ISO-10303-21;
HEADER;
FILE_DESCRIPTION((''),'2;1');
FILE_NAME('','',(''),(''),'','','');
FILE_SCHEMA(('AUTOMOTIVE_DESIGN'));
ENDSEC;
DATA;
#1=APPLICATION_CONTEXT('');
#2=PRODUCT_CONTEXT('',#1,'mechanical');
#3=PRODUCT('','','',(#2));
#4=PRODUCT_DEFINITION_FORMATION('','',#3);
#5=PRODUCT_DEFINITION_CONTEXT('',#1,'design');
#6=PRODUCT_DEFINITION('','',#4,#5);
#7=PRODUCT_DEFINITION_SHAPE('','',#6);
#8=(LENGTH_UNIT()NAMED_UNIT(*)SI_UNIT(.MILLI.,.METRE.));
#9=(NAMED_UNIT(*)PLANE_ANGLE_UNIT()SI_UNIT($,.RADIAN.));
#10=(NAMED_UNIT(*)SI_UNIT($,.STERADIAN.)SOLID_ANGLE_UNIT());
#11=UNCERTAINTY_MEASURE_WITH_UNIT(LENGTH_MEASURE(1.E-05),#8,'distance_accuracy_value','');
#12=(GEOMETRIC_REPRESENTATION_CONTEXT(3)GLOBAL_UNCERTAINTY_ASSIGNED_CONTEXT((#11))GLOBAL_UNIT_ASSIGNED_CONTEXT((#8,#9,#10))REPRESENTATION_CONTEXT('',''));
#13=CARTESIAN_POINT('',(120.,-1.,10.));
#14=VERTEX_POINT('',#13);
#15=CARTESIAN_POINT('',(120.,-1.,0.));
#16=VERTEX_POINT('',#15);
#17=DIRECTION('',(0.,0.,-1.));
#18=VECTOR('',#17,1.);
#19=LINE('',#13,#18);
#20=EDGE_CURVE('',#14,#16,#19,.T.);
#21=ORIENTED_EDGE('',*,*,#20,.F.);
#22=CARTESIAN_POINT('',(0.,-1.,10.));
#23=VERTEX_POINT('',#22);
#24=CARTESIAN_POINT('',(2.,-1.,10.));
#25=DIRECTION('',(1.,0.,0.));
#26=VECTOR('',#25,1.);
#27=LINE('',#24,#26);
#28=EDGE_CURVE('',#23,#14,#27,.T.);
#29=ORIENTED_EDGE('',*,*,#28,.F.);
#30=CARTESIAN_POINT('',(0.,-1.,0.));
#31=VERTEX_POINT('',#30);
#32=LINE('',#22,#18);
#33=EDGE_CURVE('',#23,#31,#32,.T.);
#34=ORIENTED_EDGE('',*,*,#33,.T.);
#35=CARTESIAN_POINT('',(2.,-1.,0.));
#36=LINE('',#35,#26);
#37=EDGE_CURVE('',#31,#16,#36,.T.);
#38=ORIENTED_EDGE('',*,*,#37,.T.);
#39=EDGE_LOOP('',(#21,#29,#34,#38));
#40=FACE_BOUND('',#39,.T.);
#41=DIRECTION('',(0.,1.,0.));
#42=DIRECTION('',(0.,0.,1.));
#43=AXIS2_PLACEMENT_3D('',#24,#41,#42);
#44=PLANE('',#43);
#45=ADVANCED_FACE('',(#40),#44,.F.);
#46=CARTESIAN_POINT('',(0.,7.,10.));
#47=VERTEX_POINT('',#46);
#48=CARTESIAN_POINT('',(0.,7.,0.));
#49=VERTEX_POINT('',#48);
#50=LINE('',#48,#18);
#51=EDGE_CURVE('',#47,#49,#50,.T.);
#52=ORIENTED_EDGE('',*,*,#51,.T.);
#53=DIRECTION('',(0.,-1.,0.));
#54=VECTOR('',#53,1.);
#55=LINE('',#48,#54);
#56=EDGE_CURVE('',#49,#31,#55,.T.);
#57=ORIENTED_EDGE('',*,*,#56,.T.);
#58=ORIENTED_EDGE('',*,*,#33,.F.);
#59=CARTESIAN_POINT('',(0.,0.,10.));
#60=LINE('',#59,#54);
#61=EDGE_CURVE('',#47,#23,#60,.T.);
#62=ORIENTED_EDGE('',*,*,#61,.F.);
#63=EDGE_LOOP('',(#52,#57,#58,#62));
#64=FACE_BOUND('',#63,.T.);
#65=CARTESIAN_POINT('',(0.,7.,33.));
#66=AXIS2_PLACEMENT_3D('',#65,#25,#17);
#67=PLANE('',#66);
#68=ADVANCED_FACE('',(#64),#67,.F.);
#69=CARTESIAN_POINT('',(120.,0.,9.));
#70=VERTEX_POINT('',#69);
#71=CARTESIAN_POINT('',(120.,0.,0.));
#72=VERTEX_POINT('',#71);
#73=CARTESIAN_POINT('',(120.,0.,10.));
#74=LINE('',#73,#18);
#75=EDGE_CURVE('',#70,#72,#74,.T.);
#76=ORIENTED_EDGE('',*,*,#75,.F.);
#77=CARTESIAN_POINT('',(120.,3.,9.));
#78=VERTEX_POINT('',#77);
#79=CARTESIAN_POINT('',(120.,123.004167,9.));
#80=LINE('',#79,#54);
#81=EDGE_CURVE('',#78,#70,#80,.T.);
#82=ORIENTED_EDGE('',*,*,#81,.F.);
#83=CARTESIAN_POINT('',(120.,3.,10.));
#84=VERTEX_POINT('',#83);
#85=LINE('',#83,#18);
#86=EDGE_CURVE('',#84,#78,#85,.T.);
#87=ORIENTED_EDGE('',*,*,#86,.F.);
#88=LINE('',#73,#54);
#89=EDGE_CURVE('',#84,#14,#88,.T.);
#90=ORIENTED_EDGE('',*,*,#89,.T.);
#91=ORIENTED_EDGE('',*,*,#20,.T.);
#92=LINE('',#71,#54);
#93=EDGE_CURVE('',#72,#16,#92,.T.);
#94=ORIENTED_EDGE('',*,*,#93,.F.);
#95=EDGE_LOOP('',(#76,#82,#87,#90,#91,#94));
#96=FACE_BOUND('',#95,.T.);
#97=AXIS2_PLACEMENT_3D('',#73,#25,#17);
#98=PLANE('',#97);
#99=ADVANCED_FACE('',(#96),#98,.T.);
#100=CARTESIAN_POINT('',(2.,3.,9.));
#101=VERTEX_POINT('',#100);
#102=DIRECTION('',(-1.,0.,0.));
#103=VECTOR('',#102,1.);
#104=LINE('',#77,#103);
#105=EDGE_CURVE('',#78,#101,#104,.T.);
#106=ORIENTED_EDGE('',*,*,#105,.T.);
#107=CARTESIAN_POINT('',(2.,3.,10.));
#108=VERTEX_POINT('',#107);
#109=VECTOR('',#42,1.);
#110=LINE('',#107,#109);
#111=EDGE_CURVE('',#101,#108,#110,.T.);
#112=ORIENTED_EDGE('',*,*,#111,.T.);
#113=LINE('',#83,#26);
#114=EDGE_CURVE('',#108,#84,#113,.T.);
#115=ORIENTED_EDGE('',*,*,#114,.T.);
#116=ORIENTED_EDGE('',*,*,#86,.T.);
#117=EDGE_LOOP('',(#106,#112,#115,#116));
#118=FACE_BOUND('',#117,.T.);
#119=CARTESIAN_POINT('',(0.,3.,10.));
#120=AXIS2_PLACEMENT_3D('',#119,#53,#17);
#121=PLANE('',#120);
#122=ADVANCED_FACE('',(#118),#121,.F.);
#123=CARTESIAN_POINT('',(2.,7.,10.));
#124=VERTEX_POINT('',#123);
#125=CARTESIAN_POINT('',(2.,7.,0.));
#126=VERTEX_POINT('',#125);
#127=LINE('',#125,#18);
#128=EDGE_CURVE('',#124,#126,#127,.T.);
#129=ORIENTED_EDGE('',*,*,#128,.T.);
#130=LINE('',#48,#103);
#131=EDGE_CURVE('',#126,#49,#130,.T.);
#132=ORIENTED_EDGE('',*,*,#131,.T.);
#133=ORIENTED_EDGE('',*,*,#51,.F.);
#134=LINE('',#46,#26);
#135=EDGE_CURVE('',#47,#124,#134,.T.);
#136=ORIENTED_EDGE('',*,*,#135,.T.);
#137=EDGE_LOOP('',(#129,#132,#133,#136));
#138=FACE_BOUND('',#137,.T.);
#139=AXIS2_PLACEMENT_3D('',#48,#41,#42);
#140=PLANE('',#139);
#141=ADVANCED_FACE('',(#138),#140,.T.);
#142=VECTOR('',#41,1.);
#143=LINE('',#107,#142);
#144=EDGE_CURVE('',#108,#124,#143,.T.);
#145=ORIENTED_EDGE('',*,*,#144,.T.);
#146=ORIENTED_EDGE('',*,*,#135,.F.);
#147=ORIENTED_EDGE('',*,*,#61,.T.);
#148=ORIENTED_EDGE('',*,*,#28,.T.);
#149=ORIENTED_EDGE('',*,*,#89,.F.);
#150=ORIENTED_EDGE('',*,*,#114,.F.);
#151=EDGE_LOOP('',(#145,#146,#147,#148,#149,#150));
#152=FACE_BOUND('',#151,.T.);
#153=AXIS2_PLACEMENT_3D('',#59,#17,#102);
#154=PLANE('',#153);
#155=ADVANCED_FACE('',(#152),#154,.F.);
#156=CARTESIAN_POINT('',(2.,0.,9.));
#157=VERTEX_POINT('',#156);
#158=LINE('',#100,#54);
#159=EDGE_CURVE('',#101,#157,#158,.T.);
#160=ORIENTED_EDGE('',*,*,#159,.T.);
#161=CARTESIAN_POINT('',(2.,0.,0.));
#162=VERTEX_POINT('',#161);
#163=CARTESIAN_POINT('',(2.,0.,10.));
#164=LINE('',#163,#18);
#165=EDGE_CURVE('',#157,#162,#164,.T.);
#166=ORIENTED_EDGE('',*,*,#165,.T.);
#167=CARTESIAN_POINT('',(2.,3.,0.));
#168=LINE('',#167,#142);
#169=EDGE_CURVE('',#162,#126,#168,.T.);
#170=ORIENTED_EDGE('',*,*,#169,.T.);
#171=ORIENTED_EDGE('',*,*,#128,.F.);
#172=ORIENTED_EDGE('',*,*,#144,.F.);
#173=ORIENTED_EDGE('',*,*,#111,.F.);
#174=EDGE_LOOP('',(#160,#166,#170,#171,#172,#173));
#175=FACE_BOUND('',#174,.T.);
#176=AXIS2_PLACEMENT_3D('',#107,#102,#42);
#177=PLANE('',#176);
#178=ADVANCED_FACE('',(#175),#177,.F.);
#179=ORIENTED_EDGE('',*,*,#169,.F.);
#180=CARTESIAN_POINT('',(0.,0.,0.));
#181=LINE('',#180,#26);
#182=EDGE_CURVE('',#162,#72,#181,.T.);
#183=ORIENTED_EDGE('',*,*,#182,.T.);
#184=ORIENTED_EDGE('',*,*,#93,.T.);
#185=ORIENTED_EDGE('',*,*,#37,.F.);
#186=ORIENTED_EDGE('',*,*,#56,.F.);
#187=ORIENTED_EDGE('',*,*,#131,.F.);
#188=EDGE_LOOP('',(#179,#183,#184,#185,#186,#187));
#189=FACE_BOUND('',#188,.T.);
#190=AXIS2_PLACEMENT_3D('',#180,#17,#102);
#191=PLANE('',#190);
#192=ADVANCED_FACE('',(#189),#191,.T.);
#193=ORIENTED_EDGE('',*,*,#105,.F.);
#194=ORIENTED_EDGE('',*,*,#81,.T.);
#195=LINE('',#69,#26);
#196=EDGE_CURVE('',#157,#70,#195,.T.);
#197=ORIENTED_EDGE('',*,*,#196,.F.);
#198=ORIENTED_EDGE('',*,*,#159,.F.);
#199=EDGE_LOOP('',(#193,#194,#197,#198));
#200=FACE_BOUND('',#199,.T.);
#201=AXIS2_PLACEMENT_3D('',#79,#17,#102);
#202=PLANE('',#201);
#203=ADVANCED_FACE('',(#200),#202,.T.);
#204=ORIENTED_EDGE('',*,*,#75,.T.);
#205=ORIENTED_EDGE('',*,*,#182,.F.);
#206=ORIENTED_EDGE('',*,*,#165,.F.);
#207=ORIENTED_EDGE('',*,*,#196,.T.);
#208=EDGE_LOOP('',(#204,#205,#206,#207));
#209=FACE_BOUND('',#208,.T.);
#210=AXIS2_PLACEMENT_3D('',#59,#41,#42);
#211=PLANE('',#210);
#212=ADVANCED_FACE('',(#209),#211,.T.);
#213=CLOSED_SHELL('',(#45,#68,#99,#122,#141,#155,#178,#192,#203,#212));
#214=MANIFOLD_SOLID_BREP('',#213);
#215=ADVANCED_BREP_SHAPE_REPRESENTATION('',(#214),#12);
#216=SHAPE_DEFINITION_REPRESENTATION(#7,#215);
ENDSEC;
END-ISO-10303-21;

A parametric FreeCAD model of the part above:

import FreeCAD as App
import Part
import Sketcher
from FreeCAD import Vector
Q = App.Units.Quantity

doc = App.newDocument("Part")
body = doc.addObject("PartDesign::Body", "Body")

sketch1 = body.newObject("Sketcher::SketchObject", "Sketch")
sketch1.AttachmentSupport = (doc.getObject("XY_Plane"), [""])
sketch1.MapMode = "FlatFace"
sketch1.addGeometry([
    Part.LineSegment(Vector(0, 0, 0), Vector(-120, 0, 0)),
    Part.LineSegment(Vector(-120, 0, 0), Vector(-120, -1, 0)),
    Part.LineSegment(Vector(-120, -1, 0), Vector(2, -1, 0)),
    Part.LineSegment(Vector(2, -1, 0), Vector(2, 3, 0)),
    Part.LineSegment(Vector(2, 3, 0), Vector(0, 3, 0)),
    Part.LineSegment(Vector(0, 3, 0), Vector(0, 0, 0)),
], False)
sketch1.addConstraint([
    Sketcher.Constraint("Coincident", 0, 2, 1, 1),
    Sketcher.Constraint("Coincident", 1, 2, 2, 1),
    Sketcher.Constraint("Coincident", 2, 2, 3, 1),
    Sketcher.Constraint("Coincident", 3, 2, 4, 1),
    Sketcher.Constraint("Coincident", 4, 2, 5, 1),
    Sketcher.Constraint("Coincident", 5, 2, 0, 1),
    Sketcher.Constraint("Horizontal", 0),
    Sketcher.Constraint("Vertical", 1),
    Sketcher.Constraint("Horizontal", 2),
    Sketcher.Constraint("Vertical", 3),
    Sketcher.Constraint("Horizontal", 4),
    Sketcher.Constraint("Vertical", 5),
    Sketcher.Constraint("Coincident", 5, 2, -1, 1),
    Sketcher.Constraint("DistanceX", 0, 2, 0, 1, Q("120 mm")),
    Sketcher.Constraint("DistanceX", 2, 1, 2, 2, Q("122 mm")),
    Sketcher.Constraint("DistanceY", 1, 2, 1, 1, Q("1 mm")),
    Sketcher.Constraint("DistanceY", 3, 1, 3, 2, Q("4 mm")),
])
pad1 = body.newObject("PartDesign::Pad", "Pad")
pad1.Profile = sketch1
pad1.Length = 10

sketch2 = body.newObject("Sketcher::SketchObject", "Sketch001")
sketch2.AttachmentSupport = (doc.getObject("XZ_Plane"), [""])
sketch2.MapMode = "FlatFace"
sketch2.addGeometry([
    Part.LineSegment(Vector(-120, 9, 0), Vector(-120, 10, 0)),
    Part.LineSegment(Vector(-120, 10, 0), Vector(0, 10, 0)),
    Part.LineSegment(Vector(0, 10, 0), Vector(0, 9, 0)),
    Part.LineSegment(Vector(0, 9, 0), Vector(-120, 9, 0)),
], False)
sketch2.addConstraint([
    Sketcher.Constraint("Coincident", 0, 2, 1, 1),
    Sketcher.Constraint("Coincident", 1, 2, 2, 1),
    Sketcher.Constraint("Coincident", 2, 2, 3, 1),
    Sketcher.Constraint("Coincident", 3, 2, 0, 1),
    Sketcher.Constraint("Vertical", 0),
    Sketcher.Constraint("Horizontal", 1),
    Sketcher.Constraint("Vertical", 2),
    Sketcher.Constraint("Horizontal", 3),
    Sketcher.Constraint("PointOnObject", 1, 2, -2),
    Sketcher.Constraint("DistanceX", 1, 1, 1, 2, Q("120 mm")),
    Sketcher.Constraint("DistanceY", 0, 1, 0, 2, Q("1 mm")),
    Sketcher.Constraint("DistanceY", -1, 1, 0, 2, Q("10 mm")),
])
pad2 = body.newObject("PartDesign::Pad", "Pad001")
pad2.Profile = sketch2
pad2.Length = 3
pad2.Reversed = True

sketch3 = body.newObject("Sketcher::SketchObject", "Sketch002")
sketch3.AttachmentSupport = (doc.getObject("XZ_Plane"), [""])
sketch3.MapMode = "FlatFace"
sketch3.AttachmentOffset = App.Placement(Vector(0, 0, -3), App.Rotation())
sketch3.addGeometry([
    Part.LineSegment(Vector(0, 0, 0), Vector(0, 10, 0)),
    Part.LineSegment(Vector(0, 10, 0), Vector(2, 10, 0)),
    Part.LineSegment(Vector(2, 10, 0), Vector(2, 0, 0)),
    Part.LineSegment(Vector(2, 0, 0), Vector(0, 0, 0)),
], False)
sketch3.addConstraint([
    Sketcher.Constraint("Coincident", 0, 2, 1, 1),
    Sketcher.Constraint("Coincident", 1, 2, 2, 1),
    Sketcher.Constraint("Coincident", 2, 2, 3, 1),
    Sketcher.Constraint("Coincident", 3, 2, 0, 1),
    Sketcher.Constraint("Vertical", 0),
    Sketcher.Constraint("Horizontal", 1),
    Sketcher.Constraint("Vertical", 2),
    Sketcher.Constraint("Horizontal", 3),
    Sketcher.Constraint("Coincident", 3, 2, -1, 1),
    Sketcher.Constraint("DistanceX", 1, 1, 1, 2, Q("2 mm")),
    Sketcher.Constraint("DistanceY", 0, 1, 0, 2, Q("10 mm")),
])
pad3 = body.newObject("PartDesign::Pad", "Pad002")
pad3.Profile = sketch3
pad3.Length = 4
pad3.Reversed = True
doc.recompute()

mirrored = body.newObject("PartDesign::Mirrored", "Mirrored")
mirrored.Originals = [pad1, pad2, pad3]
mirrored.MirrorPlane = (doc.getObject("YZ_Plane"), [""])
body.Tip = mirrored

sketch4 = body.newObject("Sketcher::SketchObject", "Sketch003")
sketch4.AttachmentSupport = (doc.getObject("XY_Plane"), [""])
sketch4.MapMode = "FlatFace"
sketch4.addGeometry([
    Part.LineSegment(Vector(0, -4, 0), Vector(-125, -4, 0)),
    Part.LineSegment(Vector(-125, -4, 0), Vector(-125, 13, 0)),
    Part.LineSegment(Vector(-125, 13, 0), Vector(0, 13, 0)),
    Part.LineSegment(Vector(0, 13, 0), Vector(0, -4, 0)),
], False)
sketch4.addConstraint([
    Sketcher.Constraint("Coincident", 0, 2, 1, 1),
    Sketcher.Constraint("Coincident", 1, 2, 2, 1),
    Sketcher.Constraint("Coincident", 2, 2, 3, 1),
    Sketcher.Constraint("Coincident", 3, 2, 0, 1),
    Sketcher.Constraint("Horizontal", 0),
    Sketcher.Constraint("Vertical", 1),
    Sketcher.Constraint("Horizontal", 2),
    Sketcher.Constraint("Vertical", 3),
    Sketcher.Constraint("PointOnObject", 2, 2, -2),
    Sketcher.Constraint("DistanceX", 0, 2, 0, 1, Q("124.646799 mm")),
    Sketcher.Constraint("DistanceY", 0, 2, -1, 1, Q("4.162999 mm")),
    Sketcher.Constraint("DistanceY", 1, 1, 1, 2, Q("17.513514 mm")),
])
pocket1 = body.newObject("PartDesign::Pocket", "Pocket")
pocket1.Profile = sketch4
pocket1.Length = 33
pocket1.Reversed = True

doc.recompute()
